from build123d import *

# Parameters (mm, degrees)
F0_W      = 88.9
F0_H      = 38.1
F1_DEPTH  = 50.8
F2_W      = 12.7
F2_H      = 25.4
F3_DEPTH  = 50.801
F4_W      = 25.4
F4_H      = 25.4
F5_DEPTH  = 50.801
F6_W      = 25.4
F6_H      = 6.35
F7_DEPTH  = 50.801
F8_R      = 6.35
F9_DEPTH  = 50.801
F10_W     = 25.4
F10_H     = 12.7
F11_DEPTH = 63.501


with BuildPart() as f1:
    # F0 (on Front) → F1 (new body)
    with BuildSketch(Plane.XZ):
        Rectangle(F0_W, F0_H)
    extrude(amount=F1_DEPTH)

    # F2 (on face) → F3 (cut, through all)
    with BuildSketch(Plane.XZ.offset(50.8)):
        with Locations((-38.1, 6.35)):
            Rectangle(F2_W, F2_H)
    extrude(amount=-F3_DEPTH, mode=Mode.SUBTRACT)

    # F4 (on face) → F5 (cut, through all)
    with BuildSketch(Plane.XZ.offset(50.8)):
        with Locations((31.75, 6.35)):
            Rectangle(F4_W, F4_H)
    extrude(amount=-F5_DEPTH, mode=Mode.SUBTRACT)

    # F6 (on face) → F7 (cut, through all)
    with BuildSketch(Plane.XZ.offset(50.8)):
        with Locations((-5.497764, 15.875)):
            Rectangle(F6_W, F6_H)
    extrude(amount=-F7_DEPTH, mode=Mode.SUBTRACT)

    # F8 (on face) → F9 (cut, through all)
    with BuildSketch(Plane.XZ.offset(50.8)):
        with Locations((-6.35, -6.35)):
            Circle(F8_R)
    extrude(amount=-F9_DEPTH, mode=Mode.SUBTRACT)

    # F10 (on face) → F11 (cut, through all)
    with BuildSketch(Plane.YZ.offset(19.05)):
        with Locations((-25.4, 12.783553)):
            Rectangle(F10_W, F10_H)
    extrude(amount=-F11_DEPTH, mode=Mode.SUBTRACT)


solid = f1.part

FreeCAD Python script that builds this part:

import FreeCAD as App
import Part
import Sketcher

V = App.Vector
Q = App.Units.Quantity

doc = App.newDocument("Part")
body = doc.addObject("PartDesign::Body", "Body")

sketch1 = body.newObject("Sketcher::SketchObject", "Sketch")
sketch1.AttachmentSupport = (doc.getObject("XZ_Plane"), [""])
sketch1.MapMode = "FlatFace"
sketch1.addGeometry([
    Part.LineSegment(V(-44, 19, 0), V(-44, -19, 0)),
    Part.LineSegment(V(-44, -19, 0), V(44, -19, 0)),
    Part.LineSegment(V(44, -19, 0), V(44, 19, 0)),
    Part.LineSegment(V(44, 19, 0), V(-44, 19, 0)),
], False)
sketch1.addConstraint([
    Sketcher.Constraint("Coincident", 0, 2, 1, 1),
    Sketcher.Constraint("Coincident", 1, 2, 2, 1),
    Sketcher.Constraint("Coincident", 2, 2, 3, 1),
    Sketcher.Constraint("Coincident", 3, 2, 0, 1),
    Sketcher.Constraint("Vertical", 0),
    Sketcher.Constraint("Horizontal", 1),
    Sketcher.Constraint("Vertical", 2),
    Sketcher.Constraint("Horizontal", 3),
    Sketcher.Constraint("Symmetric", 0, 2, 2, 2, -1, 1),
    Sketcher.Constraint("DistanceX", 1, 1, 1, 2, Q("3.5 in")),
    Sketcher.Constraint("DistanceY", 0, 2, 0, 1, Q("1.5 in")),
])
pad1 = body.newObject("PartDesign::Pad", "Pad")
pad1.Profile = sketch1
pad1.Length = Q("2 in")

sketch2 = body.newObject("Sketcher::SketchObject", "Sketch001")
sketch2.AttachmentSupport = (doc.getObject("XZ_Plane"), [""])
sketch2.MapMode = "FlatFace"
sketch2.AttachmentOffset = App.Placement(V(0, 0, 2 * 25.4), App.Rotation())
sketch2.addGeometry([
    Part.LineSegment(V(-44, 19, 0), V(-44, -6, 0)),
    Part.LineSegment(V(-44, -6, 0), V(-32, -6, 0)),
    Part.LineSegment(V(-32, -6, 0), V(-32, 19, 0)),
    Part.LineSegment(V(-32, 19, 0), V(-44, 19, 0)),
], False)
sketch2.addConstraint([
    Sketcher.Constraint("Coincident", 0, 2, 1, 1),
    Sketcher.Constraint("Coincident", 1, 2, 2, 1),
    Sketcher.Constraint("Coincident", 2, 2, 3, 1),
    Sketcher.Constraint("Coincident", 3, 2, 0, 1),
    Sketcher.Constraint("Vertical", 0),
    Sketcher.Constraint("Horizontal", 1),
    Sketcher.Constraint("Vertical", 2),
    Sketcher.Constraint("Horizontal", 3),
    Sketcher.Constraint("DistanceY", 0, 2, 0, 1, Q("1 in")),
    Sketcher.Constraint("DistanceX", 1, 1, 1, 2, Q("0.5 in")),
    Sketcher.Constraint("DistanceX", 0, 2, -1, 1, Q("1.75 in")),
    Sketcher.Constraint("DistanceY", 0, 2, -1, 1, Q("0.25 in")),
])
pocket1 = body.newObject("PartDesign::Pocket", "Pocket")
pocket1.Profile = sketch2
pocket1.Type = "ThroughAll"

sketch3 = body.newObject("Sketcher::SketchObject", "Sketch002")
sketch3.AttachmentSupport = (doc.getObject("XZ_Plane"), [""])
sketch3.MapMode = "FlatFace"
sketch3.AttachmentOffset = App.Placement(V(0, 0, 2 * 25.4), App.Rotation())
sketch3.addGeometry([
    Part.LineSegment(V(19, 19, 0), V(19, -6, 0)),
    Part.LineSegment(V(19, -6, 0), V(44, -6, 0)),
    Part.LineSegment(V(44, -6, 0), V(44, 19, 0)),
    Part.LineSegment(V(44, 19, 0), V(19, 19, 0)),
], False)
sketch3.addConstraint([
    Sketcher.Constraint("Coincident", 0, 2, 1, 1),
    Sketcher.Constraint("Coincident", 1, 2, 2, 1),
    Sketcher.Constraint("Coincident", 2, 2, 3, 1),
    Sketcher.Constraint("Coincident", 3, 2, 0, 1),
    Sketcher.Constraint("Vertical", 0),
    Sketcher.Constraint("Horizontal", 1),
    Sketcher.Constraint("Vertical", 2),
    Sketcher.Constraint("Horizontal", 3),
    Sketcher.Constraint("Equal", 3, 0),
    Sketcher.Constraint("DistanceX", 1, 1, 1, 2, Q("1 in")),
    Sketcher.Constraint("DistanceX", -1, 1, 0, 2, Q("0.75 in")),
    Sketcher.Constraint("DistanceY", 0, 2, -1, 1, Q("0.25 in")),
])
pocket2 = body.newObject("PartDesign::Pocket", "Pocket001")
pocket2.Profile = sketch3
pocket2.Type = "ThroughAll"

sketch4 = body.newObject("Sketcher::SketchObject", "Sketch003")
sketch4.AttachmentSupport = (doc.getObject("XZ_Plane"), [""])
sketch4.MapMode = "FlatFace"
sketch4.AttachmentOffset = App.Placement(V(0, 0, 2 * 25.4), App.Rotation())
sketch4.addGeometry([
    Part.LineSegment(V(-18, 19, 0), V(-18, 13, 0)),
    Part.LineSegment(V(-18, 13, 0), V(7, 13, 0)),
    Part.LineSegment(V(7, 13, 0), V(7, 19, 0)),
    Part.LineSegment(V(7, 19, 0), V(-18, 19, 0)),
], False)
sketch4.addConstraint([
    Sketcher.Constraint("Coincident", 0, 2, 1, 1),
    Sketcher.Constraint("Coincident", 1, 2, 2, 1),
    Sketcher.Constraint("Coincident", 2, 2, 3, 1),
    Sketcher.Constraint("Coincident", 3, 2, 0, 1),
    Sketcher.Constraint("Vertical", 0),
    Sketcher.Constraint("Horizontal", 1),
    Sketcher.Constraint("Vertical", 2),
    Sketcher.Constraint("Horizontal", 3),
    Sketcher.Constraint("DistanceX", 1, 1, 1, 2, Q("1 in")),
    Sketcher.Constraint("DistanceY", 0, 2, 0, 1, Q("0.25 in")),
    Sketcher.Constraint("DistanceY", -1, 1, 0, 2, Q("0.5 in")),
    Sketcher.Constraint("DistanceX", 0, 2, -1, 1, 18.197764),
])
pocket3 = body.newObject("PartDesign::Pocket", "Pocket002")
pocket3.Profile = sketch4
pocket3.Type = "ThroughAll"

sketch5 = body.newObject("Sketcher::SketchObject", "Sketch004")
sketch5.AttachmentSupport = (doc.getObject("XZ_Plane"), [""])
sketch5.MapMode = "FlatFace"
sketch5.AttachmentOffset = App.Placement(V(0, 0, 2 * 25.4), App.Rotation())
sketch5.addGeometry(Part.Circle(V(-6, -6, 0), V(0, 0, 1), 6), False)
sketch5.addConstraint([
    Sketcher.Constraint("Diameter", 0, Q("0.5 in")),
    Sketcher.Constraint("DistanceX", 0, 3, -1, 1, Q("0.25 in")),
    Sketcher.Constraint("DistanceY", 0, 3, -1, 1, Q("0.25 in")),
])
pocket4 = body.newObject("PartDesign::Pocket", "Pocket003")
pocket4.Profile = sketch5
pocket4.Type = "ThroughAll"

sketch6 = body.newObject("Sketcher::SketchObject", "Sketch005")
sketch6.AttachmentSupport = (doc.getObject("YZ_Plane"), [""])
sketch6.MapMode = "FlatFace"
sketch6.AttachmentOffset = App.Placement(V(0, 0, 0.75 * 25.4), App.Rotation())
sketch6.addGeometry([
    Part.LineSegment(V(-38, 19, 0), V(-38, 6, 0)),
    Part.LineSegment(V(-38, 6, 0), V(-13, 6, 0)),
    Part.LineSegment(V(-13, 6, 0), V(-13, 19, 0)),
    Part.LineSegment(V(-13, 19, 0), V(-38, 19, 0)),
], False)
sketch6.addConstraint([
    Sketcher.Constraint("Coincident", 0, 2, 1, 1),
    Sketcher.Constraint("Coincident", 1, 2, 2, 1),
    Sketcher.Constraint("Coincident", 2, 2, 3, 1),
    Sketcher.Constraint("Coincident", 3, 2, 0, 1),
    Sketcher.Constraint("Vertical", 0),
    Sketcher.Constraint("Horizontal", 1),
    Sketcher.Constraint("Vertical", 2),
    Sketcher.Constraint("Horizontal", 3),
    Sketcher.Constraint("DistanceX", 1, 1, 1, 2, Q("1 in")),
    Sketcher.Constraint("DistanceY", 0, 2, 0, 1, Q("0.5 in")),
    Sketcher.Constraint("DistanceX", 0, 2, -1, 1, Q("1.5 in")),
    Sketcher.Constraint("DistanceY", -1, 1, 0, 2, 6.433553),
])
pocket5 = body.newObject("PartDesign::Pocket", "Pocket004")
pocket5.Profile = sketch6
pocket5.Type = "ThroughAll"

doc.recompute()
